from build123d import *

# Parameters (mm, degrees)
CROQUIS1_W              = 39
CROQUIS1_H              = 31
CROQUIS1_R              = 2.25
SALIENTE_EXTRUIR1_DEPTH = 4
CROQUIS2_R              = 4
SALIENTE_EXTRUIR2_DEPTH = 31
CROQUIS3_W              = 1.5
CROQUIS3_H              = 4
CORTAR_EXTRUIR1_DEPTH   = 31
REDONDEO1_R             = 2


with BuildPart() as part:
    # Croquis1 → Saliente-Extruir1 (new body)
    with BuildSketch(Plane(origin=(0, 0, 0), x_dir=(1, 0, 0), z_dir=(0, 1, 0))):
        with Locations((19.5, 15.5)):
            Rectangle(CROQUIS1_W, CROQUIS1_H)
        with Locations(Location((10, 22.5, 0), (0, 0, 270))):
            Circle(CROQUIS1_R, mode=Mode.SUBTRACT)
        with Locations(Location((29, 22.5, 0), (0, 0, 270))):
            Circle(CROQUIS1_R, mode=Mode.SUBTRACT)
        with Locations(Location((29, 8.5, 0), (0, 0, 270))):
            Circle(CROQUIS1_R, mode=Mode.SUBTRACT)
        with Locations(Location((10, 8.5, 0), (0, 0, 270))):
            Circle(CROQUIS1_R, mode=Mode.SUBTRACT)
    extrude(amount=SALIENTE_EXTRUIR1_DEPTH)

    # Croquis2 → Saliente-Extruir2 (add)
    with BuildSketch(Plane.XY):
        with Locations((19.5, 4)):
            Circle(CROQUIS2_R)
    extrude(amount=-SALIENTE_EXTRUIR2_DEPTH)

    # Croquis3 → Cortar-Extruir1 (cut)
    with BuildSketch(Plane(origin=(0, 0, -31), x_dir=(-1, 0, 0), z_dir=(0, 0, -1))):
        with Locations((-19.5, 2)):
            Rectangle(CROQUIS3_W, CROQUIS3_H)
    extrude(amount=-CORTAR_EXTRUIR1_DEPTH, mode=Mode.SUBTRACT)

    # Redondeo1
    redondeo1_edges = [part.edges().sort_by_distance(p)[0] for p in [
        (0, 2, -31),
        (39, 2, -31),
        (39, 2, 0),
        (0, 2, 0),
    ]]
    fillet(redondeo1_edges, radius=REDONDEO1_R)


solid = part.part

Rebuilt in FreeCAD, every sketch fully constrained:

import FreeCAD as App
import Part
import Sketcher
from FreeCAD import Vector


def edges_at(feature, points):
    """Names of the edges that pass closest to the given points."""
    edges = feature.Shape.Edges
    near = lambda p: min(range(len(edges)), key=lambda i: edges[i].distToShape(Part.Vertex(*p))[0])
    return sorted({f"Edge{near(p) + 1}" for p in points})

doc = App.newDocument("Part")
body = doc.addObject("PartDesign::Body", "Body")

# Sketch on XZ plane
sketch1 = doc.addObject("Sketcher::SketchObject", "Sketch")
body.addObject(sketch1)
sketch1.AttachmentSupport = (doc.XZ_Plane, [""])
sketch1.MapMode = "FlatFace"
sketch1.addGeometry(Part.LineSegment(Vector(0, -31, 0), Vector(0, 0, 0)), False)
sketch1.addGeometry(Part.LineSegment(Vector(0, 0, 0), Vector(39, 0, 0)), False)
sketch1.addGeometry(Part.LineSegment(Vector(39, 0, 0), Vector(39, -31, 0)), False)
sketch1.addGeometry(Part.LineSegment(Vector(39, -31, 0), Vector(0, -31, 0)), False)
sketch1.addGeometry(Part.Circle(Vector(10, -8.5, 0), Vector(0, 0, 1), 2.25), False)
sketch1.addGeometry(Part.Circle(Vector(29, -8.5, 0), Vector(0, 0, 1), 2.25), False)
sketch1.addGeometry(Part.Circle(Vector(10, -22.5, 0), Vector(0, 0, 1), 2.25), False)
sketch1.addGeometry(Part.Circle(Vector(29, -22.5, 0), Vector(0, 0, 1), 2.25), False)
sketch1.addConstraint(Sketcher.Constraint("Coincident", 0, 2, 1, 1))
sketch1.addConstraint(Sketcher.Constraint("Coincident", 1, 2, 2, 1))
sketch1.addConstraint(Sketcher.Constraint("Coincident", 2, 2, 3, 1))
sketch1.addConstraint(Sketcher.Constraint("Coincident", 3, 2, 0, 1))
sketch1.addConstraint(Sketcher.Constraint("Vertical", 0))
sketch1.addConstraint(Sketcher.Constraint("Horizontal", 1))
sketch1.addConstraint(Sketcher.Constraint("Vertical", 2))
sketch1.addConstraint(Sketcher.Constraint("Horizontal", 3))
sketch1.addConstraint(Sketcher.Constraint("Coincident", 0, 2, -1, 1))
sketch1.addConstraint(Sketcher.Constraint("Equal", 4, 5))
sketch1.addConstraint(Sketcher.Constraint("Equal", 5, 6))
sketch1.addConstraint(Sketcher.Constraint("Equal", 6, 7))
sketch1.addConstraint(Sketcher.Constraint("Horizontal", 4, 3, 5, 3))
sketch1.addConstraint(Sketcher.Constraint("Horizontal", 6, 3, 7, 3))
sketch1.addConstraint(Sketcher.Constraint("Vertical", 4, 3, 6, 3))
sketch1.addConstraint(Sketcher.Constraint("Vertical", 5, 3, 7, 3))
sketch1.addConstraint(Sketcher.Constraint("Diameter", 4, 4.5))
sketch1.addConstraint(Sketcher.Constraint("DistanceX", 1, 1, 1, 2, 39.0))
sketch1.addConstraint(Sketcher.Constraint("DistanceY", 0, 1, 0, 2, 31.0))
sketch1.addConstraint(Sketcher.Constraint("DistanceX", -1, 1, 4, 3, 10.0))
sketch1.addConstraint(Sketcher.Constraint("DistanceX", -1, 1, 5, 3, 29.0))
sketch1.addConstraint(Sketcher.Constraint("DistanceY", 6, 3, 4, 3, 14.0))
sketch1.addConstraint(Sketcher.Constraint("DistanceY", 4, 3, -1, 1, 8.5))
pad1 = doc.addObject("PartDesign::Pad", "Pad")
body.addObject(pad1)
pad1.Profile = sketch1
pad1.Length = 4
pad1.Reversed = True

# Sketch on XY plane
sketch2 = doc.addObject("Sketcher::SketchObject", "Sketch001")
body.addObject(sketch2)
sketch2.AttachmentSupport = (doc.XY_Plane, [""])
sketch2.MapMode = "FlatFace"
sketch2.addGeometry(Part.Circle(Vector(19.5, 4, 0), Vector(0, 0, 1), 4), False)
sketch2.addConstraint(Sketcher.Constraint("Diameter", 0, 8.0))
sketch2.addConstraint(Sketcher.Constraint("DistanceY", -1, 1, 0, 3, 4.0))
sketch2.addConstraint(Sketcher.Constraint("DistanceX", -1, 1, 0, 3, 19.5))
pad2 = doc.addObject("PartDesign::Pad", "Pad001")
body.addObject(pad2)
pad2.Profile = sketch2
pad2.Length = 31
pad2.Reversed = True

# Sketch on XY plane
sketch3 = doc.addObject("Sketcher::SketchObject", "Sketch002")
body.addObject(sketch3)
sketch3.AttachmentSupport = (doc.XY_Plane, [""])
sketch3.MapMode = "FlatFace"
sketch3.AttachmentOffset = App.Placement(Vector(0, 0, -31), App.Rotation())
sketch3.addGeometry(Part.LineSegment(Vector(20.25, 4, 0), Vector(20.25, 0, 0)), False)
sketch3.addGeometry(Part.LineSegment(Vector(20.25, 0, 0), Vector(18.75, 0, 0)), False)
sketch3.addGeometry(Part.LineSegment(Vector(18.75, 0, 0), Vector(18.75, 4, 0)), False)
sketch3.addGeometry(Part.LineSegment(Vector(18.75, 4, 0), Vector(20.25, 4, 0)), False)
sketch3.addConstraint(Sketcher.Constraint("Coincident", 0, 2, 1, 1))
sketch3.addConstraint(Sketcher.Constraint("Coincident", 1, 2, 2, 1))
sketch3.addConstraint(Sketcher.Constraint("Coincident", 2, 2, 3, 1))
sketch3.addConstraint(Sketcher.Constraint("Coincident", 3, 2, 0, 1))
sketch3.addConstraint(Sketcher.Constraint("Vertical", 0))
sketch3.addConstraint(Sketcher.Constraint("Horizontal", 1))
sketch3.addConstraint(Sketcher.Constraint("Vertical", 2))
sketch3.addConstraint(Sketcher.Constraint("Horizontal", 3))
sketch3.addConstraint(Sketcher.Constraint("PointOnObject", 0, 2, -1))
sketch3.addConstraint(Sketcher.Constraint("DistanceY", 0, 2, 0, 1, 4.0))
sketch3.addConstraint(Sketcher.Constraint("DistanceX", 1, 2, 1, 1, 1.5))
sketch3.addConstraint(Sketcher.Constraint("DistanceX", -1, 1, 0, 2, 20.25))
pocket1 = doc.addObject("PartDesign::Pocket", "Pocket")
body.addObject(pocket1)
pocket1.Profile = sketch3
pocket1.Length = 31
pocket1.Reversed = True
doc.recompute()

fillet = doc.addObject("PartDesign::Fillet", "Fillet")
body.addObject(fillet)
fillet.Base = (pocket1, edges_at(pocket1, [
    (0, 2, -31),
    (39, 2, -31),
    (39, 2, 0),
    (0, 2, 0),
]))
fillet.Radius = 2

doc.recompute()
